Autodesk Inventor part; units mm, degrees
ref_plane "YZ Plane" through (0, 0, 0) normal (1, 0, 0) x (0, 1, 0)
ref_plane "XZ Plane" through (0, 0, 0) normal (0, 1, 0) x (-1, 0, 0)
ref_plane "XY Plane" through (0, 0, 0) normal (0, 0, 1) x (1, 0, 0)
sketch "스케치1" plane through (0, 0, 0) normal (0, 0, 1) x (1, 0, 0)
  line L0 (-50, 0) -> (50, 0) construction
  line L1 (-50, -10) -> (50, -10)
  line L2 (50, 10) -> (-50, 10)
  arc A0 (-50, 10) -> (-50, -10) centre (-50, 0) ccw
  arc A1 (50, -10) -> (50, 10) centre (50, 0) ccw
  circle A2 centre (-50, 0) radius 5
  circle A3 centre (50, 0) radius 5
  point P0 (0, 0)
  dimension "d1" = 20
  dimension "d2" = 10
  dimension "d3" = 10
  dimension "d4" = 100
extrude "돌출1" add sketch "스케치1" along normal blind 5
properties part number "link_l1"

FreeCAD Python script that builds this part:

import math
import FreeCAD as App
import Part
import Sketcher
from FreeCAD import Vector
Q = App.Units.Quantity

doc = App.newDocument("Part")
params = doc.addObject("Spreadsheet::Sheet", "Params")
for row, (alias, value) in enumerate([
    ("sketch1_diameter", "10 mm"),
    ("sketch1_radius", "10 mm"),
    ("sketch1_width", "100 mm"),
    ("pad1_length", "5 mm"),
], start=1):
    params.set(f"A{row}", alias)
    params.set(f"B{row}", "=" + value)
    params.setAlias(f"B{row}", alias)

body = doc.addObject("PartDesign::Body", "Body")

# Sketch on XY plane
sketch1 = doc.addObject("Sketcher::SketchObject", "Sketch")
body.addObject(sketch1)
sketch1.AttachmentSupport = (doc.XY_Plane, [""])
sketch1.MapMode = "FlatFace"
sketch1.addGeometry([
    Part.ArcOfCircle(Part.Circle(Vector(-50, 0, 0), Vector(0, 0, 1), 10), math.radians(90), math.radians(270)),  # 0
    Part.LineSegment(Vector(-50, -10, 0), Vector(50, -10, 0)),  # 1
    Part.ArcOfCircle(Part.Circle(Vector(50, 0, 0), Vector(0, 0, 1), 10), math.radians(-90), math.radians(90)),  # 2
    Part.LineSegment(Vector(50, 10, 0), Vector(-50, 10, 0)),  # 3
    Part.Circle(Vector(-50, 0, 0), Vector(0, 0, 1), 5),  # 4
    Part.Circle(Vector(50, 0, 0), Vector(0, 0, 1), 5),  # 5
], False)
sketch1.addConstraint([
    Sketcher.Constraint("Tangent", 0, 2, 1, 1),
    Sketcher.Constraint("Tangent", 1, 2, 2, 1),
    Sketcher.Constraint("Tangent", 2, 2, 3, 1),
    Sketcher.Constraint("Tangent", 3, 2, 0, 1),
    Sketcher.Constraint("Horizontal", 1),
    Sketcher.Constraint("Horizontal", 3),
    Sketcher.Constraint("Coincident", 4, 3, 0, 3),
    Sketcher.Constraint("Coincident", 5, 3, 2, 3),
    Sketcher.Constraint("Equal", 4, 5),
    Sketcher.Constraint("Symmetric", 0, 3, 2, 3, -1, 1),
    Sketcher.Constraint("Diameter", 4, Q("10 mm")),
    Sketcher.Constraint("Radius", 0, Q("10 mm")),
    Sketcher.Constraint("DistanceX", 1, 1, 1, 2, Q("100 mm")),
])
sketch1.setExpression("Constraints[10]", "Params.sketch1_diameter")
sketch1.setExpression("Constraints[11]", "Params.sketch1_radius")
sketch1.setExpression("Constraints[12]", "Params.sketch1_width")
pad1 = doc.addObject("PartDesign::Pad", "Pad")
body.addObject(pad1)
pad1.Profile = sketch1
pad1.setExpression("Length", "Params.pad1_length")

doc.recompute()
